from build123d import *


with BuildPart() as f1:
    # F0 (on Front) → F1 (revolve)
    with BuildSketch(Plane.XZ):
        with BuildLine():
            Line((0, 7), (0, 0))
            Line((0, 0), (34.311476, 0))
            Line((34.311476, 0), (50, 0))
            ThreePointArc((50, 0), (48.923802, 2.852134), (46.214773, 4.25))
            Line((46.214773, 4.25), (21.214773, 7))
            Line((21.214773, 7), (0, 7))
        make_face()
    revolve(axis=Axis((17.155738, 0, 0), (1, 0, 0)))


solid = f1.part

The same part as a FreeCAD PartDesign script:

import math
import FreeCAD as App
import Part
import Sketcher

V = App.Vector

doc = App.newDocument("Part")
body = doc.addObject("PartDesign::Body", "Body")

# Sketch on XZ plane
sketch1 = doc.addObject("Sketcher::SketchObject", "Sketch")
body.addObject(sketch1)
sketch1.AttachmentSupport = (doc.XZ_Plane, [""])
sketch1.MapMode = "FlatFace"
sketch1.addGeometry([
    Part.LineSegment(V(0, 7, 0), V(0, 0, 0)),  # 0
    Part.LineSegment(V(0, 0, 0), V(50, 0, 0)),  # 1
    Part.ArcOfCircle(Part.Circle(V(45.8, 0, 0), V(0, 0, 1), 4.3), math.radians(0), math.radians(84)),  # 2
    Part.LineSegment(V(46.2, 4.2, 0), V(21.2, 7, 0)),  # 3
    Part.LineSegment(V(21.2, 7, 0), V(0, 7, 0)),  # 4
], False)
sketch1.addConstraint([
    Sketcher.Constraint("Coincident", 0, 2, 1, 1),
    Sketcher.Constraint("Coincident", 1, 2, 2, 1),
    Sketcher.Constraint("Tangent", 2, 2, 3, 1),
    Sketcher.Constraint("Coincident", 3, 2, 4, 1),
    Sketcher.Constraint("Coincident", 4, 2, 0, 1),
    Sketcher.Constraint("Vertical", 0),
    Sketcher.Constraint("Horizontal", 1),
    Sketcher.Constraint("Horizontal", 4),
    Sketcher.Constraint("Coincident", 0, 2, -1, 1),
    Sketcher.Constraint("DistanceX", 1, 1, 1, 2, 50.0),
    Sketcher.Constraint("DistanceY", 0, 2, 0, 1, 7.0),
    Sketcher.Constraint("Radius", 2, 4.25),
    Sketcher.Constraint("DistanceX", 3, 2, 2, 2, 25.0),
    Sketcher.Constraint("DistanceY", -1, 1, 2, 2, 4.25),
])
revolution = doc.addObject("PartDesign::Revolution", "Revolution")
body.addObject(revolution)
revolution.Profile = sketch1
revolution.ReferenceAxis = (sketch1, ["H_Axis"])
revolution.Angle = 360

doc.recompute()
